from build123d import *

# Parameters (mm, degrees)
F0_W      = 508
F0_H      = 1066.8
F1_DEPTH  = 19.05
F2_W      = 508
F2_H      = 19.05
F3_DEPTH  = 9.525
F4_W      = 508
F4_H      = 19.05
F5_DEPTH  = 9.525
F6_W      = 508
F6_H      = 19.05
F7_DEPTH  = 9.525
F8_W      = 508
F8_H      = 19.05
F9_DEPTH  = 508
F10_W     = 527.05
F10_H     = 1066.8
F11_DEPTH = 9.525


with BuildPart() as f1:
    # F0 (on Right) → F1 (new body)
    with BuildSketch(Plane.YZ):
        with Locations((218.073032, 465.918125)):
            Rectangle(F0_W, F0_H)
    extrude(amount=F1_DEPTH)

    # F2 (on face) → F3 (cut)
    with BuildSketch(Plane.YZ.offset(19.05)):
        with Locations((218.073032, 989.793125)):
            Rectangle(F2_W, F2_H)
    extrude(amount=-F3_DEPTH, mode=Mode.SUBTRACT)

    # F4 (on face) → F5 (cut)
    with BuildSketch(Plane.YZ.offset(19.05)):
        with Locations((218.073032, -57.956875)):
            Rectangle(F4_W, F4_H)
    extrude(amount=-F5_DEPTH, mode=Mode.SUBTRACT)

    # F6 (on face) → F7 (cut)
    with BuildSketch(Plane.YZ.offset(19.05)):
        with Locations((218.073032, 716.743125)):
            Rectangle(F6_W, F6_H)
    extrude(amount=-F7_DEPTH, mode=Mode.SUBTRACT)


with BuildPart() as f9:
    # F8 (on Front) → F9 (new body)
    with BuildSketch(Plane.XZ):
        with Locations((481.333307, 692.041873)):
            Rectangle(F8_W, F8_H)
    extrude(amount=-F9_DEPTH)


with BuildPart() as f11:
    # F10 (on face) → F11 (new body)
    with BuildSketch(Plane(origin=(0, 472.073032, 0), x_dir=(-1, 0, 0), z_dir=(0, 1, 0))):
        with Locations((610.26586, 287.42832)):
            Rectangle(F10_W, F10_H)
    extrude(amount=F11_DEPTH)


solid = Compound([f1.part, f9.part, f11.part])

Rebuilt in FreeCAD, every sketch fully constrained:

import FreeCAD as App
import Part
import Sketcher

V = App.Vector
Q = App.Units.Quantity

doc = App.newDocument("Part")
body = doc.addObject("PartDesign::Body", "Body")

sketch1 = doc.addObject("Sketcher::SketchObject", "Sketch")
body.addObject(sketch1)
sketch1.AttachmentSupport = (doc.YZ_Plane, [""])
sketch1.MapMode = "FlatFace"
sketch1.addGeometry([
    Part.LineSegment(V(-36, 999, 0), V(-36, -67, 0)),
    Part.LineSegment(V(-36, -67, 0), V(472, -67, 0)),
    Part.LineSegment(V(472, -67, 0), V(472, 999, 0)),
    Part.LineSegment(V(472, 999, 0), V(-36, 999, 0)),
], False)
sketch1.addConstraint([
    Sketcher.Constraint("Coincident", 0, 2, 1, 1),
    Sketcher.Constraint("Coincident", 1, 2, 2, 1),
    Sketcher.Constraint("Coincident", 2, 2, 3, 1),
    Sketcher.Constraint("Coincident", 3, 2, 0, 1),
    Sketcher.Constraint("Vertical", 0),
    Sketcher.Constraint("Horizontal", 1),
    Sketcher.Constraint("Vertical", 2),
    Sketcher.Constraint("Horizontal", 3),
    Sketcher.Constraint("DistanceX", 1, 1, 1, 2, Q("20 in")),
    Sketcher.Constraint("DistanceY", 0, 2, 0, 1, Q("42 in")),
    Sketcher.Constraint("DistanceX", 0, 2, -1, 1, 35.926968),
    Sketcher.Constraint("DistanceY", 0, 2, -1, 1, 67.481875),
])
pad1 = doc.addObject("PartDesign::Pad", "Pad")
body.addObject(pad1)
pad1.Profile = sketch1
pad1.Length = Q("0.75 in")

sketch2 = doc.addObject("Sketcher::SketchObject", "Sketch001")
body.addObject(sketch2)
sketch2.AttachmentSupport = (doc.YZ_Plane, [""])
sketch2.MapMode = "FlatFace"
sketch2.AttachmentOffset = App.Placement(V(0, 0, 0.75 * 25.4), App.Rotation())
sketch2.addGeometry([
    Part.LineSegment(V(-36, 999, 0), V(-36, 980, 0)),
    Part.LineSegment(V(-36, 980, 0), V(472, 980, 0)),
    Part.LineSegment(V(472, 980, 0), V(472, 999, 0)),
    Part.LineSegment(V(472, 999, 0), V(-36, 999, 0)),
], False)
sketch2.addConstraint([
    Sketcher.Constraint("Coincident", 0, 2, 1, 1),
    Sketcher.Constraint("Coincident", 1, 2, 2, 1),
    Sketcher.Constraint("Coincident", 2, 2, 3, 1),
    Sketcher.Constraint("Coincident", 3, 2, 0, 1),
    Sketcher.Constraint("Vertical", 0),
    Sketcher.Constraint("Horizontal", 1),
    Sketcher.Constraint("Vertical", 2),
    Sketcher.Constraint("Horizontal", 3),
    Sketcher.Constraint("DistanceX", 1, 1, 1, 2, Q("20 in")),
    Sketcher.Constraint("DistanceY", 0, 2, 0, 1, Q("0.75 in")),
    Sketcher.Constraint("DistanceX", 0, 2, -1, 1, 35.926968),
    Sketcher.Constraint("DistanceY", -1, 1, 0, 2, 980.268125),
])
pocket1 = doc.addObject("PartDesign::Pocket", "Pocket")
body.addObject(pocket1)
pocket1.Profile = sketch2
pocket1.Length = Q("0.375 in")

sketch3 = doc.addObject("Sketcher::SketchObject", "Sketch002")
body.addObject(sketch3)
sketch3.AttachmentSupport = (doc.YZ_Plane, [""])
sketch3.MapMode = "FlatFace"
sketch3.AttachmentOffset = App.Placement(V(0, 0, 0.75 * 25.4), App.Rotation())
sketch3.addGeometry([
    Part.LineSegment(V(-36, -48, 0), V(-36, -67, 0)),
    Part.LineSegment(V(-36, -67, 0), V(472, -67, 0)),
    Part.LineSegment(V(472, -67, 0), V(472, -48, 0)),
    Part.LineSegment(V(472, -48, 0), V(-36, -48, 0)),
], False)
sketch3.addConstraint([
    Sketcher.Constraint("Coincident", 0, 2, 1, 1),
    Sketcher.Constraint("Coincident", 1, 2, 2, 1),
    Sketcher.Constraint("Coincident", 2, 2, 3, 1),
    Sketcher.Constraint("Coincident", 3, 2, 0, 1),
    Sketcher.Constraint("Vertical", 0),
    Sketcher.Constraint("Horizontal", 1),
    Sketcher.Constraint("Vertical", 2),
    Sketcher.Constraint("Horizontal", 3),
    Sketcher.Constraint("DistanceX", 1, 1, 1, 2, Q("20 in")),
    Sketcher.Constraint("DistanceY", 0, 2, 0, 1, Q("0.75 in")),
    Sketcher.Constraint("DistanceX", 0, 2, -1, 1, 35.926968),
    Sketcher.Constraint("DistanceY", 0, 2, -1, 1, 67.481875),
])
pocket2 = doc.addObject("PartDesign::Pocket", "Pocket001")
body.addObject(pocket2)
pocket2.Profile = sketch3
pocket2.Length = Q("0.375 in")

sketch4 = doc.addObject("Sketcher::SketchObject", "Sketch003")
body.addObject(sketch4)
sketch4.AttachmentSupport = (doc.YZ_Plane, [""])
sketch4.MapMode = "FlatFace"
sketch4.AttachmentOffset = App.Placement(V(0, 0, 0.75 * 25.4), App.Rotation())
sketch4.addGeometry([
    Part.LineSegment(V(-36, 726, 0), V(-36, 707, 0)),
    Part.LineSegment(V(-36, 707, 0), V(472, 707, 0)),
    Part.LineSegment(V(472, 707, 0), V(472, 726, 0)),
    Part.LineSegment(V(472, 726, 0), V(-36, 726, 0)),
], False)
sketch4.addConstraint([
    Sketcher.Constraint("Coincident", 0, 2, 1, 1),
    Sketcher.Constraint("Coincident", 1, 2, 2, 1),
    Sketcher.Constraint("Coincident", 2, 2, 3, 1),
    Sketcher.Constraint("Coincident", 3, 2, 0, 1),
    Sketcher.Constraint("Vertical", 0),
    Sketcher.Constraint("Horizontal", 1),
    Sketcher.Constraint("Vertical", 2),
    Sketcher.Constraint("Horizontal", 3),
    Sketcher.Constraint("DistanceX", 1, 1, 1, 2, Q("20 in")),
    Sketcher.Constraint("DistanceY", 0, 2, 0, 1, Q("0.75 in")),
    Sketcher.Constraint("DistanceX", 0, 2, -1, 1, 35.926968),
    Sketcher.Constraint("DistanceY", -1, 1, 0, 2, 707.218125),
])
pocket3 = doc.addObject("PartDesign::Pocket", "Pocket002")
body.addObject(pocket3)
pocket3.Profile = sketch4
pocket3.Length = Q("0.375 in")
body2 = doc.addObject("PartDesign::Body", "Body001")

sketch5 = doc.addObject("Sketcher::SketchObject", "Sketch004")
body2.addObject(sketch5)
sketch5.AttachmentSupport = (doc.getObject("XZ_Plane001"), [""])
sketch5.MapMode = "FlatFace"
sketch5.addGeometry([
    Part.LineSegment(V(227, 702, 0), V(227, 683, 0)),
    Part.LineSegment(V(227, 683, 0), V(735, 683, 0)),
    Part.LineSegment(V(735, 683, 0), V(735, 702, 0)),
    Part.LineSegment(V(735, 702, 0), V(227, 702, 0)),
], False)
sketch5.addConstraint([
    Sketcher.Constraint("Coincident", 0, 2, 1, 1),
    Sketcher.Constraint("Coincident", 1, 2, 2, 1),
    Sketcher.Constraint("Coincident", 2, 2, 3, 1),
    Sketcher.Constraint("Coincident", 3, 2, 0, 1),
    Sketcher.Constraint("Vertical", 0),
    Sketcher.Constraint("Horizontal", 1),
    Sketcher.Constraint("Vertical", 2),
    Sketcher.Constraint("Horizontal", 3),
    Sketcher.Constraint("DistanceX", 1, 1, 1, 2, Q("20 in")),
    Sketcher.Constraint("DistanceY", 0, 2, 0, 1, Q("0.75 in")),
    Sketcher.Constraint("DistanceX", -1, 1, 0, 2, 227.333307),
    Sketcher.Constraint("DistanceY", -1, 1, 0, 2, 682.516873),
])
pad2 = doc.addObject("PartDesign::Pad", "Pad001")
body2.addObject(pad2)
pad2.Profile = sketch5
pad2.Length = Q("20 in")
pad2.Reversed = True
body3 = doc.addObject("PartDesign::Body", "Body002")

sketch6 = doc.addObject("Sketcher::SketchObject", "Sketch005")
body3.addObject(sketch6)
sketch6.AttachmentSupport = (doc.getObject("XZ_Plane002"), [""])
sketch6.MapMode = "FlatFace"
sketch6.AttachmentOffset = App.Placement(V(0, 0, -472.073032), App.Rotation())
sketch6.addGeometry([
    Part.LineSegment(V(-347, 821, 0), V(-347, -246, 0)),
    Part.LineSegment(V(-347, -246, 0), V(-874, -246, 0)),
    Part.LineSegment(V(-874, -246, 0), V(-874, 821, 0)),
    Part.LineSegment(V(-874, 821, 0), V(-347, 821, 0)),
], False)
sketch6.addConstraint([
    Sketcher.Constraint("Coincident", 0, 2, 1, 1),
    Sketcher.Constraint("Coincident", 1, 2, 2, 1),
    Sketcher.Constraint("Coincident", 2, 2, 3, 1),
    Sketcher.Constraint("Coincident", 3, 2, 0, 1),
    Sketcher.Constraint("Vertical", 0),
    Sketcher.Constraint("Horizontal", 1),
    Sketcher.Constraint("Vertical", 2),
    Sketcher.Constraint("Horizontal", 3),
    Sketcher.Constraint("DistanceY", 0, 2, 0, 1, Q("42 in")),
    Sketcher.Constraint("DistanceX", 1, 2, 1, 1, Q("20.75 in")),
    Sketcher.Constraint("DistanceX", 0, 2, -1, 1, 346.74086),
    Sketcher.Constraint("DistanceY", 0, 2, -1, 1, 245.97168),
])
pad3 = doc.addObject("PartDesign::Pad", "Pad002")
body3.addObject(pad3)
pad3.Profile = sketch6
pad3.Length = Q("0.375 in")
pad3.Reversed = True

doc.recompute()
